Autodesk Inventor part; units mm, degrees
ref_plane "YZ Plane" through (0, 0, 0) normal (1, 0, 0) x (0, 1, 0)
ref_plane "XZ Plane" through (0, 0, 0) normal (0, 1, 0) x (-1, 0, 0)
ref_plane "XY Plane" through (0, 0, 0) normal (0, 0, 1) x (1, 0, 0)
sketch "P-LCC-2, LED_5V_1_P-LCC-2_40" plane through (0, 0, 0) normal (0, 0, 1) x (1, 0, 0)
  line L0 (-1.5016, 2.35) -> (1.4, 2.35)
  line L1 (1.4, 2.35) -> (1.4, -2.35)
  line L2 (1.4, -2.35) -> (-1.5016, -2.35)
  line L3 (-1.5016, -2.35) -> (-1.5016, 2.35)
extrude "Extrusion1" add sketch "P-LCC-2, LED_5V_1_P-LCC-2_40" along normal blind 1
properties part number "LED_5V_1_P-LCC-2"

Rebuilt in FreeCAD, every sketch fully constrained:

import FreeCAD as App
import Part
import Sketcher

V = App.Vector
Q = App.Units.Quantity

doc = App.newDocument("Part")
body = doc.addObject("PartDesign::Body", "Body")

# Sketch on XY plane
sketch1 = doc.addObject("Sketcher::SketchObject", "Sketch")
body.addObject(sketch1)
sketch1.AttachmentSupport = (doc.XY_Plane, [""])
sketch1.MapMode = "FlatFace"
sketch1.addGeometry([
    Part.LineSegment(V(1.4, 2.4, 0), V(-1.5, 2.4, 0)),
    Part.LineSegment(V(-1.5, 2.4, 0), V(-1.5, -2.4, 0)),
    Part.LineSegment(V(-1.5, -2.4, 0), V(1.4, -2.4, 0)),
    Part.LineSegment(V(1.4, -2.4, 0), V(1.4, 2.4, 0)),
], False)
sketch1.addConstraint([
    Sketcher.Constraint("Coincident", 0, 2, 1, 1),
    Sketcher.Constraint("Coincident", 1, 2, 2, 1),
    Sketcher.Constraint("Coincident", 2, 2, 3, 1),
    Sketcher.Constraint("Coincident", 3, 2, 0, 1),
    Sketcher.Constraint("Horizontal", 0),
    Sketcher.Constraint("Vertical", 1),
    Sketcher.Constraint("Horizontal", 2),
    Sketcher.Constraint("Vertical", 3),
    Sketcher.Constraint("DistanceY", 1, 2, 1, 1, Q("4.7 mm")),
    Sketcher.Constraint("DistanceX", -1, 1, 2, 2, Q("1.4 mm")),
    Sketcher.Constraint("DistanceY", -1, 1, 0, 2, Q("2.35 mm")),
    Sketcher.Constraint("DistanceX", 0, 2, 0, 1, Q("2.9016 mm")),
])
pad1 = doc.addObject("PartDesign::Pad", "Pad")
body.addObject(pad1)
pad1.Profile = sketch1
pad1.Length = 1

doc.recompute()
